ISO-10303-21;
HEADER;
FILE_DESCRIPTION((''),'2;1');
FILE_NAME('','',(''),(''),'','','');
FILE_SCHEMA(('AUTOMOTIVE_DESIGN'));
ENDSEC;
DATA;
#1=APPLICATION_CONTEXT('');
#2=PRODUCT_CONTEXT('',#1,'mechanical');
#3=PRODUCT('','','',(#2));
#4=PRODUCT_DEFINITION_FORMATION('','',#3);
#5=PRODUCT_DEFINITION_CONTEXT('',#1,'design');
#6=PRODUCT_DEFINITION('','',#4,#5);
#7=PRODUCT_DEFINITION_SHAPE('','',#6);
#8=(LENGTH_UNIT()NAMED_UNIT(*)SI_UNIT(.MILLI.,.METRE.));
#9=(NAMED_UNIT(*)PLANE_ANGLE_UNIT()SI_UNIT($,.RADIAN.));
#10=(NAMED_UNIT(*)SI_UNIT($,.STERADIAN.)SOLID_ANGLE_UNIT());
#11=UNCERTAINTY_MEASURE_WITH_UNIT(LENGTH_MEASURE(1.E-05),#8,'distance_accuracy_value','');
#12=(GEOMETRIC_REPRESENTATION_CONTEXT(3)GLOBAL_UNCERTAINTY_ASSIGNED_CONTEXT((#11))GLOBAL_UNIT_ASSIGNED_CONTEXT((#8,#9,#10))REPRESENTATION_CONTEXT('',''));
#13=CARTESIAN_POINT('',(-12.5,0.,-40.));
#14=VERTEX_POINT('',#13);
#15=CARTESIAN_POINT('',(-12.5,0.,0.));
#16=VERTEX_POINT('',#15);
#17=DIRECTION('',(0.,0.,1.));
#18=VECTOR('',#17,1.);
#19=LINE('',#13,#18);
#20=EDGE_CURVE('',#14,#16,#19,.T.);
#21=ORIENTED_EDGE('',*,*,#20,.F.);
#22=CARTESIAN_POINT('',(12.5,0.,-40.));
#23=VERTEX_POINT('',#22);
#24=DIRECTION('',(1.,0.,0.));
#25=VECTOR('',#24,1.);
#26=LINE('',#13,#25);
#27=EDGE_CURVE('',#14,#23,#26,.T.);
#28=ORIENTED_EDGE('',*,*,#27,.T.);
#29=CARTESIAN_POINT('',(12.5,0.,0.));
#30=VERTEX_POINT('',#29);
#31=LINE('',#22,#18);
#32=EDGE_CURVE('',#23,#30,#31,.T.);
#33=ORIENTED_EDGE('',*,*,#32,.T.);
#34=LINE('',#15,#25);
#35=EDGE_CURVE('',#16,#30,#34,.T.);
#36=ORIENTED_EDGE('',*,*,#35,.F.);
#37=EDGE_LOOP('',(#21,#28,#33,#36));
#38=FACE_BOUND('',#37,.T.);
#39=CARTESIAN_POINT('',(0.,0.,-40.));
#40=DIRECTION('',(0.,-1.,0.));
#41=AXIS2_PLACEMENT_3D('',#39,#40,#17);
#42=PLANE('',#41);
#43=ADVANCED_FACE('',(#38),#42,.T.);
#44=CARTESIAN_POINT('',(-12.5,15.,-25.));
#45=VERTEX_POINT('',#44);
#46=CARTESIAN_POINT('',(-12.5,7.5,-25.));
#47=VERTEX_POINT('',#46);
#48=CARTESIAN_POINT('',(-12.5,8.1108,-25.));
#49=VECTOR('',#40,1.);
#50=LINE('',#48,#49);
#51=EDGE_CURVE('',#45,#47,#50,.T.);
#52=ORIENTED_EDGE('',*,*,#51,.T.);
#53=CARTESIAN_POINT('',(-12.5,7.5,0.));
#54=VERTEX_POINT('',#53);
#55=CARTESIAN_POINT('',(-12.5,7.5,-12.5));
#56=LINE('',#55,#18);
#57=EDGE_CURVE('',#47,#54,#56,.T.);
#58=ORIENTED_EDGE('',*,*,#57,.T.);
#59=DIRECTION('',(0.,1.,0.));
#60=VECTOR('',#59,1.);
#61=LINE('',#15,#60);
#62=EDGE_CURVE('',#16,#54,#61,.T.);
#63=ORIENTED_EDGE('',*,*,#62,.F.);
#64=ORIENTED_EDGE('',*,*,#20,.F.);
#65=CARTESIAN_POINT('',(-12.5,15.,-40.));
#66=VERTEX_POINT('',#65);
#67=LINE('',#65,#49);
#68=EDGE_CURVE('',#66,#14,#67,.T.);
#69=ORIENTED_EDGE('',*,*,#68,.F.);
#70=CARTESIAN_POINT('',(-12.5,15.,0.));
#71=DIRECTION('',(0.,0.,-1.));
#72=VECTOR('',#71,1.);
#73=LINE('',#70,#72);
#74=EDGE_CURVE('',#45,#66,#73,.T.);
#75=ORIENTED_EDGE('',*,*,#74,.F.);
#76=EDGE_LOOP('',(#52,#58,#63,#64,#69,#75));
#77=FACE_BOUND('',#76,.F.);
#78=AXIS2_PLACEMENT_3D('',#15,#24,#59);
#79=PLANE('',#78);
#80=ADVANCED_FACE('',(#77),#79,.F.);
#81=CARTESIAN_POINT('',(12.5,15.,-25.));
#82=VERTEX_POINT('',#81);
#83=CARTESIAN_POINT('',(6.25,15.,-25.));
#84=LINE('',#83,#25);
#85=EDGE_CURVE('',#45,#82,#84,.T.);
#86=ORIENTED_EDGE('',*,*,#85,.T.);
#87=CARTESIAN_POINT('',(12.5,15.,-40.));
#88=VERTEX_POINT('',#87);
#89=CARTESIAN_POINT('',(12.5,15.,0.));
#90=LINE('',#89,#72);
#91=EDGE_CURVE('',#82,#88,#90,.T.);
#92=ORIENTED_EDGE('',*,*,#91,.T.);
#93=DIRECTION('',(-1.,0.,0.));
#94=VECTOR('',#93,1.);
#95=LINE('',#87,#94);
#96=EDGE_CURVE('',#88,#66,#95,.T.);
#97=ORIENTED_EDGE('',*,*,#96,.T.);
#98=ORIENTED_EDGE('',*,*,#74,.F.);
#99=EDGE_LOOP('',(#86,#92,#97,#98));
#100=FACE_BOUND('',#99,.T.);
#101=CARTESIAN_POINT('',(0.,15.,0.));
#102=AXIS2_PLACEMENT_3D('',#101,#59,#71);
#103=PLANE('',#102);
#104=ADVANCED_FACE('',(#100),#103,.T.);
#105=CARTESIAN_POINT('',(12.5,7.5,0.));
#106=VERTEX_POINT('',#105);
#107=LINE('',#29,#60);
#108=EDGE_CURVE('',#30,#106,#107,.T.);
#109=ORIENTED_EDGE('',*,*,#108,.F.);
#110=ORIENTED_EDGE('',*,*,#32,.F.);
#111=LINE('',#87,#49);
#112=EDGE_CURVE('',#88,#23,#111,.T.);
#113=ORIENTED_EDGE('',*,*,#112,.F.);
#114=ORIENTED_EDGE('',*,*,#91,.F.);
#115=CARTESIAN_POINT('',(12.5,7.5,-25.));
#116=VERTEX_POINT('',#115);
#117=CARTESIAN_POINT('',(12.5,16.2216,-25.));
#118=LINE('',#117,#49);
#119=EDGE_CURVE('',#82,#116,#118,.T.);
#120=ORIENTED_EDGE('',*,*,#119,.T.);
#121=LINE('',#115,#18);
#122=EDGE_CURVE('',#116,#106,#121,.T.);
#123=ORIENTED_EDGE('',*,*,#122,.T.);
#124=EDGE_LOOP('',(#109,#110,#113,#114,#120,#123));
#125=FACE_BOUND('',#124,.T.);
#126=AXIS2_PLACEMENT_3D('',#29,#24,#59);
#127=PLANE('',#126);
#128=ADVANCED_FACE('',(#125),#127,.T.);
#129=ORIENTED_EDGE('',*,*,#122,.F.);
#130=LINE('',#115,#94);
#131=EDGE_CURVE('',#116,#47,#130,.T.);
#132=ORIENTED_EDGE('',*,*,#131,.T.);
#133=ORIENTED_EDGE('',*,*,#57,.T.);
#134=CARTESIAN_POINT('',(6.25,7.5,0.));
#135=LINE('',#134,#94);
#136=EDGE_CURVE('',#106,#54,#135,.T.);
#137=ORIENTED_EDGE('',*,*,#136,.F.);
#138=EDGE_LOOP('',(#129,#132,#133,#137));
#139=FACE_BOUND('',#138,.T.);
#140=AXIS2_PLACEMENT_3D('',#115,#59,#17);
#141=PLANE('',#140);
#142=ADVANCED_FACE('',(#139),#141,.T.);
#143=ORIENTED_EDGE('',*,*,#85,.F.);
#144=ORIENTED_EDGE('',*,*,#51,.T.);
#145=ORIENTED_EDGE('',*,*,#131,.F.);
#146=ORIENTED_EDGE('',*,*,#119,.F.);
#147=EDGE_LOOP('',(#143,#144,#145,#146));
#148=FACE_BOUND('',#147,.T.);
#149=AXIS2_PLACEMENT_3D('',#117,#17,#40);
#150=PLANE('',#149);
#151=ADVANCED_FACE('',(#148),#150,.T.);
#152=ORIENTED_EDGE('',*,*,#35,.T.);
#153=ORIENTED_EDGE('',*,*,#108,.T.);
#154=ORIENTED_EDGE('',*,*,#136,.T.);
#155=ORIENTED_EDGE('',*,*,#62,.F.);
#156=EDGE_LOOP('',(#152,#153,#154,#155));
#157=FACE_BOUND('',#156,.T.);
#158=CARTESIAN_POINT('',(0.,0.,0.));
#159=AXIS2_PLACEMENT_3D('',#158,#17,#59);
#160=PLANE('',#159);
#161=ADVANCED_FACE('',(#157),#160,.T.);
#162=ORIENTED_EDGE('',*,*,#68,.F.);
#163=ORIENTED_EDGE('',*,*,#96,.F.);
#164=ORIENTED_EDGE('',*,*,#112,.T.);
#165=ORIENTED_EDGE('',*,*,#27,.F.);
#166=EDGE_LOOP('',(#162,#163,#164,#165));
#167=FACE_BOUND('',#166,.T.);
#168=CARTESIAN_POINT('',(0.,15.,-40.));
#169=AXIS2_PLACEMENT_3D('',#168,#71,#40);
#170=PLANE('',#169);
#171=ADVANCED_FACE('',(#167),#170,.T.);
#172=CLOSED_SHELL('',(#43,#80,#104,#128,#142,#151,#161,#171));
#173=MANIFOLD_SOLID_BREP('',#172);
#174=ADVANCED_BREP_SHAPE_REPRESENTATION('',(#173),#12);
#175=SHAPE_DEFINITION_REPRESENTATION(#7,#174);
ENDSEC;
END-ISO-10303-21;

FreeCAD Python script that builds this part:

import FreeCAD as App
import Part
import Sketcher


def add_polygon(sketch, points):
    """Adds a closed chain of lines whose ends are joined by coincident constraints."""
    first, n = sketch.GeometryCount, len(points)
    for a, b in zip(points, points[1:] + points[:1]):
        sketch.addGeometry(Part.LineSegment(App.Vector(*a, 0), App.Vector(*b, 0)), False)
    for i in range(n):
        sketch.addConstraint(Sketcher.Constraint("Coincident", first + i, 2, first + (i + 1) % n, 1))

doc = App.newDocument("Part")
params = doc.addObject("Spreadsheet::Sheet", "Params")
for row, (alias, value) in enumerate([
    ("sketch1_width", "15 mm"),
    ("sketch1_height", "40 mm"),
    ("pad1_length", "25 mm"),
    ("sketch2_height", "30 mm"),
], start=1):
    params.set(f"A{row}", alias)
    params.set(f"B{row}", "=" + value)
    params.setAlias(f"B{row}", alias)

body = doc.addObject("PartDesign::Body", "Body")

# Sketch on YZ plane
sketch1 = doc.addObject("Sketcher::SketchObject", "Sketch")
body.addObject(sketch1)
sketch1.AttachmentSupport = (doc.YZ_Plane, [""])
sketch1.MapMode = "FlatFace"
add_polygon(sketch1, [(15, 0), (0, 0), (0, -40), (15, -40)])  # lines 0-3
sketch1.addConstraint(Sketcher.Constraint("Horizontal", 0))
sketch1.addConstraint(Sketcher.Constraint("Vertical", 1))
sketch1.addConstraint(Sketcher.Constraint("Horizontal", 2))
sketch1.addConstraint(Sketcher.Constraint("Vertical", 3))
sketch1.addConstraint(Sketcher.Constraint("Coincident", 0, 2, -1, 1))
sketch1.addConstraint(Sketcher.Constraint("DistanceX", 0, 2, 0, 1, 15.0))
sketch1.addConstraint(Sketcher.Constraint("DistanceY", 1, 2, 1, 1, 40.0))
sketch1.setExpression("Constraints[9]", "Params.sketch1_width")
sketch1.setExpression("Constraints[10]", "Params.sketch1_height")
pad1 = doc.addObject("PartDesign::Pad", "Pad")
body.addObject(pad1)
pad1.Profile = sketch1
pad1.setExpression("Length", "Params.pad1_length")
pad1.Midplane = True

# Sketch on YZ plane
sketch2 = doc.addObject("Sketcher::SketchObject", "Sketch001")
body.addObject(sketch2)
sketch2.AttachmentSupport = (doc.YZ_Plane, [""])
sketch2.MapMode = "FlatFace"
sketch2.AttachmentOffset = App.Placement(App.Vector(0, 0, 12.5), App.Rotation())
add_polygon(sketch2, [(16, -25), (16, 5), (8, 5), (8, -25)])  # lines 0-3
sketch2.addConstraint(Sketcher.Constraint("Vertical", 0))
sketch2.addConstraint(Sketcher.Constraint("Horizontal", 1))
sketch2.addConstraint(Sketcher.Constraint("Vertical", 2))
sketch2.addConstraint(Sketcher.Constraint("Horizontal", 3))
sketch2.addConstraint(Sketcher.Constraint("DistanceY", 0, 1, 0, 2, 30.0))
sketch2.addConstraint(Sketcher.Constraint("DistanceX", -1, 1, 1, 2, 7.5))
sketch2.addConstraint(Sketcher.Constraint("DistanceY", -1, 1, 0, 2, 5.0))
sketch2.addConstraint(Sketcher.Constraint("DistanceX", 1, 2, 1, 1, 8.7216))
sketch2.setExpression("Constraints[8]", "Params.sketch2_height")
pocket1 = doc.addObject("PartDesign::Pocket", "Pocket")
body.addObject(pocket1)
pocket1.Profile = sketch2
pocket1.Type = "ThroughAll"

doc.recompute()
